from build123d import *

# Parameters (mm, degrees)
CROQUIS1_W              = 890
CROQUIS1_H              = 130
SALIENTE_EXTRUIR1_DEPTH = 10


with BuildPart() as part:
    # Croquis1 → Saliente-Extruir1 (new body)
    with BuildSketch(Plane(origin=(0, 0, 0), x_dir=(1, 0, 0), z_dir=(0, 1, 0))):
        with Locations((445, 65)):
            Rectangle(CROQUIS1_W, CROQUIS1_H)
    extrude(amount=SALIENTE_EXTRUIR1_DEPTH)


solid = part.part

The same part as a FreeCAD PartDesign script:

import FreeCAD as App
import Part
import Sketcher

V = App.Vector

doc = App.newDocument("Part")
params = doc.addObject("Spreadsheet::Sheet", "Params")
for row, (alias, value) in enumerate([
    ("sketch1_width", "890 mm"),
    ("sketch1_height", "130 mm"),
    ("pad1_length", "10 mm"),
], start=1):
    params.set(f"A{row}", alias)
    params.set(f"B{row}", "=" + value)
    params.setAlias(f"B{row}", alias)

body = doc.addObject("PartDesign::Body", "Body")

# Sketch on XZ plane
sketch1 = body.newObject("Sketcher::SketchObject", "Sketch")
sketch1.AttachmentSupport = (doc.getObject("XZ_Plane"), [""])
sketch1.MapMode = "FlatFace"
sketch1.addGeometry([
    Part.LineSegment(V(0, -130, 0), V(0, 0, 0)),
    Part.LineSegment(V(0, 0, 0), V(890, 0, 0)),
    Part.LineSegment(V(890, 0, 0), V(890, -130, 0)),
    Part.LineSegment(V(890, -130, 0), V(0, -130, 0)),
], False)
sketch1.addConstraint([
    Sketcher.Constraint("Coincident", 0, 2, 1, 1),
    Sketcher.Constraint("Coincident", 1, 2, 2, 1),
    Sketcher.Constraint("Coincident", 2, 2, 3, 1),
    Sketcher.Constraint("Coincident", 3, 2, 0, 1),
    Sketcher.Constraint("Vertical", 0),
    Sketcher.Constraint("Horizontal", 1),
    Sketcher.Constraint("Vertical", 2),
    Sketcher.Constraint("Horizontal", 3),
    Sketcher.Constraint("Coincident", 0, 2, -1, 1),
    Sketcher.Constraint("DistanceX", 1, 1, 1, 2, 890.0),
    Sketcher.Constraint("DistanceY", 0, 1, 0, 2, 130.0),
])
sketch1.setExpression("Constraints[9]", "Params.sketch1_width")
sketch1.setExpression("Constraints[10]", "Params.sketch1_height")
pad1 = body.newObject("PartDesign::Pad", "Pad")
pad1.Profile = sketch1
pad1.setExpression("Length", "Params.pad1_length")
pad1.Reversed = True

doc.recompute()
